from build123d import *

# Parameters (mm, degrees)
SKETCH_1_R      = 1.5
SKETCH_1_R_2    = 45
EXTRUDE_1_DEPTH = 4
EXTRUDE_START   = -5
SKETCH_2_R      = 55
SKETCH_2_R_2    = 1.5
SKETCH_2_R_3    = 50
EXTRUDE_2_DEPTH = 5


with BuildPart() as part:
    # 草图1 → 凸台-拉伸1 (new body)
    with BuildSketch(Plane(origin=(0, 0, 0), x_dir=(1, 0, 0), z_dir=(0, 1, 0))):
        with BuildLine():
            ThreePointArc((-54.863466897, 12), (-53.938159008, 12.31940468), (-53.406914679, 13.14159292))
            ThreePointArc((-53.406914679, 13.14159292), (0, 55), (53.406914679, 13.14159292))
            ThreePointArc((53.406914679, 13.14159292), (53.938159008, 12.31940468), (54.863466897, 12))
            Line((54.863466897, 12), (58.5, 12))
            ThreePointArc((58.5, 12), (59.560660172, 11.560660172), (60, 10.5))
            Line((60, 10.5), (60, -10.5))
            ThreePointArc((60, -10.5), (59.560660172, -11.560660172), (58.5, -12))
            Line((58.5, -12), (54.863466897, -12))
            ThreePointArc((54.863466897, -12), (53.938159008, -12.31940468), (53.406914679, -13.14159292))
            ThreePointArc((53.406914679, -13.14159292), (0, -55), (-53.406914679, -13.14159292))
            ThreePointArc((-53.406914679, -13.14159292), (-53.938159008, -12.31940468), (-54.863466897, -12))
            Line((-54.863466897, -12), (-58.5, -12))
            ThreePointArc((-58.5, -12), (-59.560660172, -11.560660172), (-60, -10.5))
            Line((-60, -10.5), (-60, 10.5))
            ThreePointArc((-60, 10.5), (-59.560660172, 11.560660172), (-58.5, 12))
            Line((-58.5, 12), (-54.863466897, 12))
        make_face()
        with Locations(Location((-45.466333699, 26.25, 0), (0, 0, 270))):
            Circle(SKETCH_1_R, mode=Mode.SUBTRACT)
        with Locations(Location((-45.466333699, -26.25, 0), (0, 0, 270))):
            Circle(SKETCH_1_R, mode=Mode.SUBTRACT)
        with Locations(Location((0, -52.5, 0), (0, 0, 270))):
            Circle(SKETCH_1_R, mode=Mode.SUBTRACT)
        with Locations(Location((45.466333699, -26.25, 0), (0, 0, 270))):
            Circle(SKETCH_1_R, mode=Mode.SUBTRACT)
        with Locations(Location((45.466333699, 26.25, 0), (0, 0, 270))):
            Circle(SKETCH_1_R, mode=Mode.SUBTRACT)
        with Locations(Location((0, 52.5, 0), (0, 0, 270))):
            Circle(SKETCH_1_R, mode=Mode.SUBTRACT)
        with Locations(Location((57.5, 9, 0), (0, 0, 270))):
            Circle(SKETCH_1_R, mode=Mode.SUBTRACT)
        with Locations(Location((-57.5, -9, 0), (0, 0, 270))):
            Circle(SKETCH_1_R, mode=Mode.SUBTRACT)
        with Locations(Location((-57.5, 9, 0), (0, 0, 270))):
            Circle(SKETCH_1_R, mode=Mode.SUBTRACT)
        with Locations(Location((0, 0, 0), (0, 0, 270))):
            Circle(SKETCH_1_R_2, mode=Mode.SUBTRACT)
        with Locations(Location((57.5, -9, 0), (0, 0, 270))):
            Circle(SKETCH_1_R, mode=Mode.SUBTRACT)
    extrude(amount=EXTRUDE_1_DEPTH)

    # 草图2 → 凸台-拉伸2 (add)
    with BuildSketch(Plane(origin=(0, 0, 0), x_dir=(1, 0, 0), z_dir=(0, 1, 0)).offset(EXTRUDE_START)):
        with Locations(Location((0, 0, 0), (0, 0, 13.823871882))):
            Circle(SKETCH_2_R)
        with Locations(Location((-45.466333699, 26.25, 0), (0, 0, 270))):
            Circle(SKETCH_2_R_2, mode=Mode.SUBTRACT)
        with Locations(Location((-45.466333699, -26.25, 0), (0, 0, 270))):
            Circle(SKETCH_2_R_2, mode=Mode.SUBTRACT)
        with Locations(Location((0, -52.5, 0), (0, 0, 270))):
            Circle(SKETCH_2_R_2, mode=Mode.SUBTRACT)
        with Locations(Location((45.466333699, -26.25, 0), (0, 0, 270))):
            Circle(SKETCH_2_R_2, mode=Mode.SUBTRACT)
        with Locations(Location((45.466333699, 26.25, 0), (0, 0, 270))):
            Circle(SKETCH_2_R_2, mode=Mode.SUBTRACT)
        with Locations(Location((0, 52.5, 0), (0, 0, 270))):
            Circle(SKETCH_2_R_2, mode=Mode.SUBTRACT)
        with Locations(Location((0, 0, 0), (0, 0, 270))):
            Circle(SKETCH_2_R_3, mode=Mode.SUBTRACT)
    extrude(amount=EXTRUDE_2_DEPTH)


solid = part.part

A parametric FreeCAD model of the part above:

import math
import FreeCAD as App
import Part
import Sketcher
Q = App.Units.Quantity

doc = App.newDocument("Part")
body = doc.addObject("PartDesign::Body", "Body")

# Sketch on XZ plane
sketch1 = doc.addObject("Sketcher::SketchObject", "Sketch")
body.addObject(sketch1)
sketch1.AttachmentSupport = (doc.XZ_Plane, [""])
sketch1.MapMode = "FlatFace"
sketch1.addGeometry(Part.ArcOfCircle(Part.Circle(App.Vector(-54.9, -13.5, 0), App.Vector(0, 0, 1), 1.5), math.radians(14), math.radians(90)), False)
sketch1.addGeometry(Part.LineSegment(App.Vector(-54.9, -12, 0), App.Vector(-58.5, -12, 0)), False)
sketch1.addGeometry(Part.ArcOfCircle(Part.Circle(App.Vector(-58.5, -10.5, 0), App.Vector(0, 0, 1), 1.5), math.radians(180), math.radians(270)), False)
sketch1.addGeometry(Part.LineSegment(App.Vector(-60, -10.5, 0), App.Vector(-60, 10.5, 0)), False)
sketch1.addGeometry(Part.ArcOfCircle(Part.Circle(App.Vector(-58.5, 10.5, 0), App.Vector(0, 0, 1), 1.5), math.radians(90), math.radians(180)), False)
sketch1.addGeometry(Part.LineSegment(App.Vector(-58.5, 12, 0), App.Vector(-54.9, 12, 0)), False)
sketch1.addGeometry(Part.ArcOfCircle(Part.Circle(App.Vector(-54.9, 13.5, 0), App.Vector(0, 0, 1), 1.5), math.radians(-90), math.radians(-14)), False)
sketch1.addGeometry(Part.ArcOfCircle(Part.Circle(App.Vector(0, 0, 0), App.Vector(0, 0, 1), 55), math.radians(14), math.radians(166)), False)
sketch1.addGeometry(Part.ArcOfCircle(Part.Circle(App.Vector(54.9, 13.5, 0), App.Vector(0, 0, 1), 1.5), math.radians(-166), math.radians(-90)), False)
sketch1.addGeometry(Part.LineSegment(App.Vector(54.9, 12, 0), App.Vector(58.5, 12, 0)), False)
sketch1.addGeometry(Part.ArcOfCircle(Part.Circle(App.Vector(58.5, 10.5, 0), App.Vector(0, 0, 1), 1.5), math.radians(0), math.radians(90)), False)
sketch1.addGeometry(Part.LineSegment(App.Vector(60, 10.5, 0), App.Vector(60, -10.5, 0)), False)
sketch1.addGeometry(Part.ArcOfCircle(Part.Circle(App.Vector(58.5, -10.5, 0), App.Vector(0, 0, 1), 1.5), math.radians(-90), math.radians(0)), False)
sketch1.addGeometry(Part.LineSegment(App.Vector(58.5, -12, 0), App.Vector(54.9, -12, 0)), False)
sketch1.addGeometry(Part.ArcOfCircle(Part.Circle(App.Vector(54.9, -13.5, 0), App.Vector(0, 0, 1), 1.5), math.radians(90), math.radians(166)), False)
sketch1.addGeometry(Part.ArcOfCircle(Part.Circle(App.Vector(0, 0, 0), App.Vector(0, 0, 1), 55), math.radians(-166), math.radians(-14)), False)
sketch1.addGeometry(Part.Circle(App.Vector(45.5, 26.2, 0), App.Vector(0, 0, 1), 1.5), False)
sketch1.addGeometry(Part.Circle(App.Vector(57.5, 9, 0), App.Vector(0, 0, 1), 1.5), False)
sketch1.addGeometry(Part.Circle(App.Vector(0, 52.5, 0), App.Vector(0, 0, 1), 1.5), False)
sketch1.addGeometry(Part.Circle(App.Vector(-45.5, 26.2, 0), App.Vector(0, 0, 1), 1.5), False)
sketch1.addGeometry(Part.Circle(App.Vector(-57.5, 9, 0), App.Vector(0, 0, 1), 1.5), False)
sketch1.addGeometry(Part.Circle(App.Vector(57.5, -9, 0), App.Vector(0, 0, 1), 1.5), False)
sketch1.addGeometry(Part.Circle(App.Vector(45.5, -26.2, 0), App.Vector(0, 0, 1), 1.5), False)
sketch1.addGeometry(Part.Circle(App.Vector(0, 0, 0), App.Vector(0, 0, 1), 45), False)
sketch1.addGeometry(Part.Circle(App.Vector(-57.5, -9, 0), App.Vector(0, 0, 1), 1.5), False)
sketch1.addGeometry(Part.Circle(App.Vector(-45.5, -26.2, 0), App.Vector(0, 0, 1), 1.5), False)
sketch1.addGeometry(Part.Circle(App.Vector(0, -52.5, 0), App.Vector(0, 0, 1), 1.5), False)
sketch1.addConstraint(Sketcher.Constraint("Tangent", 0, 2, 1, 1))
sketch1.addConstraint(Sketcher.Constraint("Tangent", 1, 2, 2, 2))
sketch1.addConstraint(Sketcher.Constraint("Tangent", 2, 1, 3, 1))
sketch1.addConstraint(Sketcher.Constraint("Tangent", 3, 2, 4, 2))
sketch1.addConstraint(Sketcher.Constraint("Tangent", 4, 1, 5, 1))
sketch1.addConstraint(Sketcher.Constraint("Tangent", 5, 2, 6, 1))
sketch1.addConstraint(Sketcher.Constraint("Tangent", 6, 2, 7, 2))
sketch1.addConstraint(Sketcher.Constraint("Tangent", 7, 1, 8, 1))
sketch1.addConstraint(Sketcher.Constraint("Tangent", 8, 2, 9, 1))
sketch1.addConstraint(Sketcher.Constraint("Tangent", 9, 2, 10, 2))
sketch1.addConstraint(Sketcher.Constraint("Tangent", 10, 1, 11, 1))
sketch1.addConstraint(Sketcher.Constraint("Tangent", 11, 2, 12, 2))
sketch1.addConstraint(Sketcher.Constraint("Tangent", 12, 1, 13, 1))
sketch1.addConstraint(Sketcher.Constraint("Tangent", 13, 2, 14, 1))
sketch1.addConstraint(Sketcher.Constraint("Tangent", 14, 2, 15, 2))
sketch1.addConstraint(Sketcher.Constraint("Tangent", 15, 1, 0, 1))
sketch1.addConstraint(Sketcher.Constraint("Horizontal", 1))
sketch1.addConstraint(Sketcher.Constraint("Vertical", 3))
sketch1.addConstraint(Sketcher.Constraint("Horizontal", 5))
sketch1.addConstraint(Sketcher.Constraint("Horizontal", 9))
sketch1.addConstraint(Sketcher.Constraint("Vertical", 11))
sketch1.addConstraint(Sketcher.Constraint("Horizontal", 13))
sketch1.addConstraint(Sketcher.Constraint("Coincident", 7, 3, -1, 1))
sketch1.addConstraint(Sketcher.Constraint("Coincident", 15, 3, -1, 1))
sketch1.addConstraint(Sketcher.Constraint("Coincident", 23, 3, -1, 1))
sketch1.addConstraint(Sketcher.Constraint("Equal", 0, 2))
sketch1.addConstraint(Sketcher.Constraint("Equal", 2, 4))
sketch1.addConstraint(Sketcher.Constraint("Equal", 4, 6))
sketch1.addConstraint(Sketcher.Constraint("Equal", 6, 8))
sketch1.addConstraint(Sketcher.Constraint("Equal", 8, 10))
sketch1.addConstraint(Sketcher.Constraint("Equal", 10, 12))
sketch1.addConstraint(Sketcher.Constraint("Equal", 12, 14))
sketch1.addConstraint(Sketcher.Constraint("Equal", 7, 15))
sketch1.addConstraint(Sketcher.Constraint("Equal", 14, 16))
sketch1.addConstraint(Sketcher.Constraint("Equal", 16, 17))
sketch1.addConstraint(Sketcher.Constraint("Equal", 17, 18))
sketch1.addConstraint(Sketcher.Constraint("Equal", 18, 19))
sketch1.addConstraint(Sketcher.Constraint("Equal", 19, 20))
sketch1.addConstraint(Sketcher.Constraint("Equal", 20, 21))
sketch1.addConstraint(Sketcher.Constraint("Equal", 21, 22))
sketch1.addConstraint(Sketcher.Constraint("Equal", 22, 24))
sketch1.addConstraint(Sketcher.Constraint("Equal", 24, 25))
sketch1.addConstraint(Sketcher.Constraint("Equal", 25, 26))
sketch1.addConstraint(Sketcher.Constraint("Symmetric", 2, 3, 10, 3, -1, 1))
sketch1.addConstraint(Sketcher.Constraint("Symmetric", 20, 3, 21, 3, -1, 1))
sketch1.addConstraint(Sketcher.Constraint("Symmetric", 19, 3, 22, 3, -1, 1))
sketch1.addConstraint(Sketcher.Constraint("Symmetric", 17, 3, 24, 3, -1, 1))
sketch1.addConstraint(Sketcher.Constraint("Symmetric", 16, 3, 25, 3, -1, 1))
sketch1.addConstraint(Sketcher.Constraint("Symmetric", 18, 3, 26, 3, -1, 1))
sketch1.addConstraint(Sketcher.Constraint("Symmetric", 16, 3, 19, 3, -2))
sketch1.addConstraint(Sketcher.Constraint("Symmetric", 17, 3, 20, 3, -2))
sketch1.addConstraint(Sketcher.Constraint("PointOnObject", 18, 3, -2))
sketch1.addConstraint(Sketcher.Constraint("Horizontal", 6, 3, 8, 3))
sketch1.addConstraint(Sketcher.Constraint("Horizontal", 2, 3, 12, 3))
sketch1.addConstraint(Sketcher.Constraint("Diameter", 16, Q("3 mm")))
sketch1.addConstraint(Sketcher.Constraint("Diameter", 23, Q("90 mm")))
sketch1.addConstraint(Sketcher.Constraint("Radius", 7, Q("55 mm")))
sketch1.addConstraint(Sketcher.Constraint("DistanceY", 3, 1, 3, 2, Q("21 mm")))
sketch1.addConstraint(Sketcher.Constraint("DistanceY", -1, 1, 17, 3, Q("9 mm")))
sketch1.addConstraint(Sketcher.Constraint("DistanceX", 2, 1, -1, 1, Q("60 mm")))
sketch1.addConstraint(Sketcher.Constraint("DistanceX", 17, 3, 10, 3, Q("1 mm")))
sketch1.addConstraint(Sketcher.Constraint("DistanceY", 6, 3, 18, 3, Q("39 mm")))
sketch1.addConstraint(Sketcher.Constraint("DistanceY", -1, 1, 16, 3, Q("26.25 mm")))
sketch1.addConstraint(Sketcher.Constraint("DistanceX", 16, 3, 7, 1, Q("7.940581 mm")))
pad1 = doc.addObject("PartDesign::Pad", "Pad")
body.addObject(pad1)
pad1.Profile = sketch1
pad1.Length = 4
pad1.Reversed = True

# Sketch on XZ plane
sketch2 = doc.addObject("Sketcher::SketchObject", "Sketch001")
body.addObject(sketch2)
sketch2.AttachmentSupport = (doc.XZ_Plane, [""])
sketch2.MapMode = "FlatFace"
sketch2.AttachmentOffset = App.Placement(App.Vector(0, 0, 5), App.Rotation())
sketch2.addGeometry(Part.Circle(App.Vector(0, 0, 0), App.Vector(0, 0, 1), 55), False)
sketch2.addGeometry(Part.Circle(App.Vector(0, 52.5, 0), App.Vector(0, 0, 1), 1.5), False)
sketch2.addGeometry(Part.Circle(App.Vector(-45.5, 26.2, 0), App.Vector(0, 0, 1), 1.5), False)
sketch2.addGeometry(Part.Circle(App.Vector(45.5, 26.2, 0), App.Vector(0, 0, 1), 1.5), False)
sketch2.addGeometry(Part.Circle(App.Vector(-45.5, -26.2, 0), App.Vector(0, 0, 1), 1.5), False)
sketch2.addGeometry(Part.Circle(App.Vector(0, 0, 0), App.Vector(0, 0, 1), 50), False)
sketch2.addGeometry(Part.Circle(App.Vector(45.5, -26.2, 0), App.Vector(0, 0, 1), 1.5), False)
sketch2.addGeometry(Part.Circle(App.Vector(0, -52.5, 0), App.Vector(0, 0, 1), 1.5), False)
sketch2.addConstraint(Sketcher.Constraint("Coincident", 0, 3, -1, 1))
sketch2.addConstraint(Sketcher.Constraint("Coincident", 5, 3, -1, 1))
sketch2.addConstraint(Sketcher.Constraint("Equal", 1, 2))
sketch2.addConstraint(Sketcher.Constraint("Equal", 2, 3))
sketch2.addConstraint(Sketcher.Constraint("Equal", 3, 4))
sketch2.addConstraint(Sketcher.Constraint("Equal", 4, 6))
sketch2.addConstraint(Sketcher.Constraint("Equal", 6, 7))
sketch2.addConstraint(Sketcher.Constraint("Symmetric", 3, 3, 4, 3, -1, 1))
sketch2.addConstraint(Sketcher.Constraint("Symmetric", 2, 3, 6, 3, -1, 1))
sketch2.addConstraint(Sketcher.Constraint("Symmetric", 1, 3, 7, 3, -1, 1))
sketch2.addConstraint(Sketcher.Constraint("Symmetric", 2, 3, 3, 3, -2))
sketch2.addConstraint(Sketcher.Constraint("PointOnObject", 1, 3, -2))
sketch2.addConstraint(Sketcher.Constraint("Diameter", 0, Q("110 mm")))
sketch2.addConstraint(Sketcher.Constraint("Diameter", 1, Q("3 mm")))
sketch2.addConstraint(Sketcher.Constraint("Diameter", 5, Q("100 mm")))
sketch2.addConstraint(Sketcher.Constraint("DistanceY", -1, 1, 1, 3, Q("52.5 mm")))
sketch2.addConstraint(Sketcher.Constraint("DistanceY", 4, 3, 2, 3, Q("52.5 mm")))
sketch2.addConstraint(Sketcher.Constraint("DistanceX", 2, 3, -1, 1, Q("45.466334 mm")))
pad2 = doc.addObject("PartDesign::Pad", "Pad001")
body.addObject(pad2)
pad2.Profile = sketch2
pad2.Length = 5
pad2.Reversed = True

doc.recompute()
